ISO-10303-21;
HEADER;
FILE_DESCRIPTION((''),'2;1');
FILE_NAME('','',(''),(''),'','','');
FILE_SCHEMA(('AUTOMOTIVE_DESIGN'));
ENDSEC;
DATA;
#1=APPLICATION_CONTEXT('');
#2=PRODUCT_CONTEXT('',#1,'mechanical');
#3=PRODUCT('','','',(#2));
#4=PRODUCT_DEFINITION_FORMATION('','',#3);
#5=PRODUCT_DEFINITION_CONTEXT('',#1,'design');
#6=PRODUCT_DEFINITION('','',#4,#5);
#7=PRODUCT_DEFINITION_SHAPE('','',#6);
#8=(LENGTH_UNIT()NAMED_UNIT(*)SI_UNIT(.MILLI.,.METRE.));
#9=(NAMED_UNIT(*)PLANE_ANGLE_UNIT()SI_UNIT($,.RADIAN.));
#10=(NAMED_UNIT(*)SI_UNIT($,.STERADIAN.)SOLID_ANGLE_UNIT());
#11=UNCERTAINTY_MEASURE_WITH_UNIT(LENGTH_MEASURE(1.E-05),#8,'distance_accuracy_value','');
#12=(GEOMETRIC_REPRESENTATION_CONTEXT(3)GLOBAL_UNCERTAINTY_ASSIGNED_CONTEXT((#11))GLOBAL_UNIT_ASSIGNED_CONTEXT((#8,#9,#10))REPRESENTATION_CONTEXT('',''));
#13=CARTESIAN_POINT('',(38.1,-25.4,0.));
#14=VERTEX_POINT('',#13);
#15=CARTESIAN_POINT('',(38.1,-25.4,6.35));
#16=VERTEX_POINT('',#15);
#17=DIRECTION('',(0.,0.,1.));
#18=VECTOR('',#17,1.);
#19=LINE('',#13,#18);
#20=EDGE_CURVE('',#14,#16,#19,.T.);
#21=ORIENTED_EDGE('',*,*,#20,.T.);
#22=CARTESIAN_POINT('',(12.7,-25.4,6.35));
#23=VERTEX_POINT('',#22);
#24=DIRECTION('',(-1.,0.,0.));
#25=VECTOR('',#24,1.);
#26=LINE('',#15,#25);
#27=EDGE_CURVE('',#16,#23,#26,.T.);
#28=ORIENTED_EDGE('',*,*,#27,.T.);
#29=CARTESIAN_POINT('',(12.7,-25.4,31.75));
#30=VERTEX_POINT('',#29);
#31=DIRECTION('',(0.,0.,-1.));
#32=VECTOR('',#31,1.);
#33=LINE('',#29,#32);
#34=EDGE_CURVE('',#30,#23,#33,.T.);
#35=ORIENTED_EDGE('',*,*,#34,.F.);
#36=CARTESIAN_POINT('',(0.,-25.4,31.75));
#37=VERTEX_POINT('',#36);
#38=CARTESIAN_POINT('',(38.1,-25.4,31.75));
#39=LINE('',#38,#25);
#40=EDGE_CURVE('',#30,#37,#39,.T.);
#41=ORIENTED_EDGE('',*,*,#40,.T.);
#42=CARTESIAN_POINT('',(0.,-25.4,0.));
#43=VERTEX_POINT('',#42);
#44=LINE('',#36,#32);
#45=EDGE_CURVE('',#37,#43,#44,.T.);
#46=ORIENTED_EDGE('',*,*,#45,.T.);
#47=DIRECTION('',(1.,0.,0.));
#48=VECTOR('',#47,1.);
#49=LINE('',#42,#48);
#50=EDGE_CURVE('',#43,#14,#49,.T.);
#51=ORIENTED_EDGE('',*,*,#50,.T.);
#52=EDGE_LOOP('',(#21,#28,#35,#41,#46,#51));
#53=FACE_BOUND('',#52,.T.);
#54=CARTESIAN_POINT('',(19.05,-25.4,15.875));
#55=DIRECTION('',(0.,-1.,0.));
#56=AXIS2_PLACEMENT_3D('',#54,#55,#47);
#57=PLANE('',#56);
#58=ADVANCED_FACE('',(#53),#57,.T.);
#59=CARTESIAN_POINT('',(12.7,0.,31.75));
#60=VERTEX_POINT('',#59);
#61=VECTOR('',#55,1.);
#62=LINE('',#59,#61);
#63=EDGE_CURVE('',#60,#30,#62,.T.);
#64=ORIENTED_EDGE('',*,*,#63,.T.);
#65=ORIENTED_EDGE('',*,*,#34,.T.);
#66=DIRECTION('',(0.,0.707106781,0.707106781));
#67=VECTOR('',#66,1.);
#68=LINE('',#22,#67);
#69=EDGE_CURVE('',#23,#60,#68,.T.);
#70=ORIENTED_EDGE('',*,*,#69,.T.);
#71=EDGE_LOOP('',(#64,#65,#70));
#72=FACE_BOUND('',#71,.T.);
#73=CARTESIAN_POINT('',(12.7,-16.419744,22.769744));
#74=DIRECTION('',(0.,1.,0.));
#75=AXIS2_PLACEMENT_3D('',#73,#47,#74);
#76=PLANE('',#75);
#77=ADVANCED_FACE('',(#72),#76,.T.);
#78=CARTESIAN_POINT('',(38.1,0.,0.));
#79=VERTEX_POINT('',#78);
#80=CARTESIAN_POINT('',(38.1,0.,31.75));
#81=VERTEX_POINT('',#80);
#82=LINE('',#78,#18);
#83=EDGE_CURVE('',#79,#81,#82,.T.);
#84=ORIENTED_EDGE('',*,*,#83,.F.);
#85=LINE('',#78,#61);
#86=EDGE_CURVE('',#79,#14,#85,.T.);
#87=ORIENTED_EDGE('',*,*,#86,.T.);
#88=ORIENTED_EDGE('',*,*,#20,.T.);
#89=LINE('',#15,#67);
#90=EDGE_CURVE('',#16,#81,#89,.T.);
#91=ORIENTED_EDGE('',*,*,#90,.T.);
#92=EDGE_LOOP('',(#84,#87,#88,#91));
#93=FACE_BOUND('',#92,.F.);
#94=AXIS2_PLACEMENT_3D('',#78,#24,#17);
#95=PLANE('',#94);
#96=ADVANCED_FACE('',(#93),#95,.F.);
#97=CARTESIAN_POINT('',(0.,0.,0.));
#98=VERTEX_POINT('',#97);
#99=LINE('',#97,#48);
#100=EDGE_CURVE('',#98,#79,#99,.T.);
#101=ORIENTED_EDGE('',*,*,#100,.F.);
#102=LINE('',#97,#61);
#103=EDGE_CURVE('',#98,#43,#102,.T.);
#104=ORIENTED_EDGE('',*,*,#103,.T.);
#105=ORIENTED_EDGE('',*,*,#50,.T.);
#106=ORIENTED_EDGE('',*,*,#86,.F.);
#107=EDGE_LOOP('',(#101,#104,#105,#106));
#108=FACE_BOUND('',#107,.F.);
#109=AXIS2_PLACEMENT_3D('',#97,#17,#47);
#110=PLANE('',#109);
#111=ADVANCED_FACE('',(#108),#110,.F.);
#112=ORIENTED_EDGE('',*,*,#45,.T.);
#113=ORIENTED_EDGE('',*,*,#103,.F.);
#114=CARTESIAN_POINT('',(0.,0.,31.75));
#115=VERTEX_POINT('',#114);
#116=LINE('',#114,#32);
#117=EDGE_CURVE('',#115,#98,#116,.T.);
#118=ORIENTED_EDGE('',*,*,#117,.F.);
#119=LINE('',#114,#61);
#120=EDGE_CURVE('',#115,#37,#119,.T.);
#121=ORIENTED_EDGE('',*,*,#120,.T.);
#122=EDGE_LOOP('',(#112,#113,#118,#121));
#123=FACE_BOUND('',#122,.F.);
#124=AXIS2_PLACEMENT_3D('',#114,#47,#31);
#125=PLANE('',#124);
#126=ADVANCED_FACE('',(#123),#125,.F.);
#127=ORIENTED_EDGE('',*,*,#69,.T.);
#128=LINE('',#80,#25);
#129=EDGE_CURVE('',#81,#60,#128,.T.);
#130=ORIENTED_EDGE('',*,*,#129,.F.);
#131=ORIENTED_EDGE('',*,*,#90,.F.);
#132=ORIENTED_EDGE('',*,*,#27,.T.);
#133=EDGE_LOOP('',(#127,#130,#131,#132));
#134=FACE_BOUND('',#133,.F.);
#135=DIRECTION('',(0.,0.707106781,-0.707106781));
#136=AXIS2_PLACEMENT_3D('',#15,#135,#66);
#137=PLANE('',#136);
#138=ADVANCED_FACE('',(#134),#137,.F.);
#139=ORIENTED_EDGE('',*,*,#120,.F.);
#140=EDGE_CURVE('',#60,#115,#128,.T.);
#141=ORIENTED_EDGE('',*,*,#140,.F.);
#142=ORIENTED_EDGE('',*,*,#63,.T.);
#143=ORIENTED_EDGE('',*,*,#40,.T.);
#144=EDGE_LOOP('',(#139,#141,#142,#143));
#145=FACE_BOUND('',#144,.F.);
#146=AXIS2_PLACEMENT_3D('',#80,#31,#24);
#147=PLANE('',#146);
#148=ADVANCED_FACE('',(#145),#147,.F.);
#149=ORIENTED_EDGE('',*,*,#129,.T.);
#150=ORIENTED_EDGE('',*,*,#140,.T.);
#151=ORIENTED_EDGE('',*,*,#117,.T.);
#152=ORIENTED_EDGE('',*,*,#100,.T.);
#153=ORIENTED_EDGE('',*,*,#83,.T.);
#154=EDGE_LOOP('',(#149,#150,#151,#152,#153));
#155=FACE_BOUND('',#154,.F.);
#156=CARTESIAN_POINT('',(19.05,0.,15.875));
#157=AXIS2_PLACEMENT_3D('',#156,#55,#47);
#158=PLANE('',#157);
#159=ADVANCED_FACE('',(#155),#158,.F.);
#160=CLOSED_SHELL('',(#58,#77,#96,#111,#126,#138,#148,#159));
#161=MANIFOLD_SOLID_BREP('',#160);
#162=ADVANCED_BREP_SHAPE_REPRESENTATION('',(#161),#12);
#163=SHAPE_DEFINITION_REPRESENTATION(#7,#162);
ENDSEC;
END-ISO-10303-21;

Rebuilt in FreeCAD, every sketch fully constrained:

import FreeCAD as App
import Part
import Sketcher
Q = App.Units.Quantity

doc = App.newDocument("Part")
body = doc.addObject("PartDesign::Body", "Body")

sketch1 = body.newObject("Sketcher::SketchObject", "Sketch")
sketch1.AttachmentSupport = (doc.getObject("XZ_Plane"), [""])
sketch1.MapMode = "FlatFace"
sketch1.addGeometry([
    Part.LineSegment(App.Vector(0, 32, 0), App.Vector(0, 0, 0)),
    Part.LineSegment(App.Vector(0, 0, 0), App.Vector(38, 0, 0)),
    Part.LineSegment(App.Vector(38, 0, 0), App.Vector(38, 32, 0)),
    Part.LineSegment(App.Vector(38, 32, 0), App.Vector(0, 32, 0)),
], False)
sketch1.addConstraint([
    Sketcher.Constraint("Coincident", 0, 2, 1, 1),
    Sketcher.Constraint("Coincident", 1, 2, 2, 1),
    Sketcher.Constraint("Coincident", 2, 2, 3, 1),
    Sketcher.Constraint("Coincident", 3, 2, 0, 1),
    Sketcher.Constraint("Vertical", 0),
    Sketcher.Constraint("Horizontal", 1),
    Sketcher.Constraint("Vertical", 2),
    Sketcher.Constraint("Horizontal", 3),
    Sketcher.Constraint("Coincident", 0, 2, -1, 1),
    Sketcher.Constraint("DistanceX", 1, 1, 1, 2, Q("1.5 in")),
    Sketcher.Constraint("DistanceY", 0, 2, 0, 1, Q("1.25 in")),
])
pad1 = body.newObject("PartDesign::Pad", "Pad")
pad1.Profile = sketch1
pad1.Length = Q("1 in")

sketch2 = body.newObject("Sketcher::SketchObject", "Sketch001")
sketch2.AttachmentSupport = (doc.getObject("YZ_Plane"), [""])
sketch2.MapMode = "FlatFace"
sketch2.AttachmentOffset = App.Placement(App.Vector(0, 0, 1.5 * 25.4), App.Rotation())
sketch2.addGeometry([
    Part.LineSegment(App.Vector(-25, 32, 0), App.Vector(-25, 6, 0)),
    Part.LineSegment(App.Vector(-25, 6, 0), App.Vector(0, 32, 0)),
    Part.LineSegment(App.Vector(0, 32, 0), App.Vector(-25, 32, 0)),
], False)
sketch2.addConstraint([
    Sketcher.Constraint("Coincident", 0, 2, 1, 1),
    Sketcher.Constraint("Coincident", 1, 2, 2, 1),
    Sketcher.Constraint("Coincident", 2, 2, 0, 1),
    Sketcher.Constraint("Vertical", 0),
    Sketcher.Constraint("Horizontal", 2),
    Sketcher.Constraint("PointOnObject", 1, 2, -2),
    Sketcher.Constraint("Equal", 2, 0),
    Sketcher.Constraint("DistanceX", 2, 2, 2, 1, Q("1 in")),
    Sketcher.Constraint("DistanceY", -1, 1, 0, 2, Q("0.25 in")),
])
pocket1 = body.newObject("PartDesign::Pocket", "Pocket")
pocket1.Profile = sketch2
pocket1.Length = Q("1 in")

doc.recompute()
